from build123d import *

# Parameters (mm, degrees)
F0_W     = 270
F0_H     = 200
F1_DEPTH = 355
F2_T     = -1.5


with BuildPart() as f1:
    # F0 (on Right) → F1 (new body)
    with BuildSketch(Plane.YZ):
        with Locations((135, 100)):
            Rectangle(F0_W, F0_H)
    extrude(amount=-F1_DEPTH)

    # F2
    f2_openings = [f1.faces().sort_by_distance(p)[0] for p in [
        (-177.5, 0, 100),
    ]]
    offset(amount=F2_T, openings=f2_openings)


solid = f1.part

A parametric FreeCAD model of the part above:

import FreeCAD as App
import Part
import Sketcher

V = App.Vector
Q = App.Units.Quantity


def faces_at(feature, points):
    """Names of the faces that lie closest to the given points."""
    faces = feature.Shape.Faces
    near = lambda p: min(range(len(faces)), key=lambda i: faces[i].distToShape(Part.Vertex(*p))[0])
    return sorted({f"Face{near(p) + 1}" for p in points})

doc = App.newDocument("Part")
body = doc.addObject("PartDesign::Body", "Body")

# Sketch on YZ plane
sketch1 = body.newObject("Sketcher::SketchObject", "Sketch")
sketch1.AttachmentSupport = (doc.getObject("YZ_Plane"), [""])
sketch1.MapMode = "FlatFace"
sketch1.addGeometry([
    Part.LineSegment(V(0, 200, 0), V(0, 0, 0)),
    Part.LineSegment(V(0, 0, 0), V(270, 0, 0)),
    Part.LineSegment(V(270, 0, 0), V(270, 200, 0)),
    Part.LineSegment(V(270, 200, 0), V(0, 200, 0)),
], False)
sketch1.addConstraint([
    Sketcher.Constraint("Coincident", 0, 2, 1, 1),
    Sketcher.Constraint("Coincident", 1, 2, 2, 1),
    Sketcher.Constraint("Coincident", 2, 2, 3, 1),
    Sketcher.Constraint("Coincident", 3, 2, 0, 1),
    Sketcher.Constraint("Vertical", 0),
    Sketcher.Constraint("Horizontal", 1),
    Sketcher.Constraint("Vertical", 2),
    Sketcher.Constraint("Horizontal", 3),
    Sketcher.Constraint("Coincident", 0, 2, -1, 1),
    Sketcher.Constraint("DistanceX", 1, 1, 1, 2, Q("270 mm")),
    Sketcher.Constraint("DistanceY", 0, 2, 0, 1, Q("200 mm")),
])
pad1 = body.newObject("PartDesign::Pad", "Pad")
pad1.Profile = sketch1
pad1.Length = 355
pad1.Reversed = True
doc.recompute()

thickness = body.newObject("PartDesign::Thickness", "Thickness")
thickness.Base = (pad1, faces_at(pad1, [(-177.5, 0, 100)]))
thickness.Value = 1.5
thickness.Reversed = True
thickness.Join = "Arc"

doc.recompute()
